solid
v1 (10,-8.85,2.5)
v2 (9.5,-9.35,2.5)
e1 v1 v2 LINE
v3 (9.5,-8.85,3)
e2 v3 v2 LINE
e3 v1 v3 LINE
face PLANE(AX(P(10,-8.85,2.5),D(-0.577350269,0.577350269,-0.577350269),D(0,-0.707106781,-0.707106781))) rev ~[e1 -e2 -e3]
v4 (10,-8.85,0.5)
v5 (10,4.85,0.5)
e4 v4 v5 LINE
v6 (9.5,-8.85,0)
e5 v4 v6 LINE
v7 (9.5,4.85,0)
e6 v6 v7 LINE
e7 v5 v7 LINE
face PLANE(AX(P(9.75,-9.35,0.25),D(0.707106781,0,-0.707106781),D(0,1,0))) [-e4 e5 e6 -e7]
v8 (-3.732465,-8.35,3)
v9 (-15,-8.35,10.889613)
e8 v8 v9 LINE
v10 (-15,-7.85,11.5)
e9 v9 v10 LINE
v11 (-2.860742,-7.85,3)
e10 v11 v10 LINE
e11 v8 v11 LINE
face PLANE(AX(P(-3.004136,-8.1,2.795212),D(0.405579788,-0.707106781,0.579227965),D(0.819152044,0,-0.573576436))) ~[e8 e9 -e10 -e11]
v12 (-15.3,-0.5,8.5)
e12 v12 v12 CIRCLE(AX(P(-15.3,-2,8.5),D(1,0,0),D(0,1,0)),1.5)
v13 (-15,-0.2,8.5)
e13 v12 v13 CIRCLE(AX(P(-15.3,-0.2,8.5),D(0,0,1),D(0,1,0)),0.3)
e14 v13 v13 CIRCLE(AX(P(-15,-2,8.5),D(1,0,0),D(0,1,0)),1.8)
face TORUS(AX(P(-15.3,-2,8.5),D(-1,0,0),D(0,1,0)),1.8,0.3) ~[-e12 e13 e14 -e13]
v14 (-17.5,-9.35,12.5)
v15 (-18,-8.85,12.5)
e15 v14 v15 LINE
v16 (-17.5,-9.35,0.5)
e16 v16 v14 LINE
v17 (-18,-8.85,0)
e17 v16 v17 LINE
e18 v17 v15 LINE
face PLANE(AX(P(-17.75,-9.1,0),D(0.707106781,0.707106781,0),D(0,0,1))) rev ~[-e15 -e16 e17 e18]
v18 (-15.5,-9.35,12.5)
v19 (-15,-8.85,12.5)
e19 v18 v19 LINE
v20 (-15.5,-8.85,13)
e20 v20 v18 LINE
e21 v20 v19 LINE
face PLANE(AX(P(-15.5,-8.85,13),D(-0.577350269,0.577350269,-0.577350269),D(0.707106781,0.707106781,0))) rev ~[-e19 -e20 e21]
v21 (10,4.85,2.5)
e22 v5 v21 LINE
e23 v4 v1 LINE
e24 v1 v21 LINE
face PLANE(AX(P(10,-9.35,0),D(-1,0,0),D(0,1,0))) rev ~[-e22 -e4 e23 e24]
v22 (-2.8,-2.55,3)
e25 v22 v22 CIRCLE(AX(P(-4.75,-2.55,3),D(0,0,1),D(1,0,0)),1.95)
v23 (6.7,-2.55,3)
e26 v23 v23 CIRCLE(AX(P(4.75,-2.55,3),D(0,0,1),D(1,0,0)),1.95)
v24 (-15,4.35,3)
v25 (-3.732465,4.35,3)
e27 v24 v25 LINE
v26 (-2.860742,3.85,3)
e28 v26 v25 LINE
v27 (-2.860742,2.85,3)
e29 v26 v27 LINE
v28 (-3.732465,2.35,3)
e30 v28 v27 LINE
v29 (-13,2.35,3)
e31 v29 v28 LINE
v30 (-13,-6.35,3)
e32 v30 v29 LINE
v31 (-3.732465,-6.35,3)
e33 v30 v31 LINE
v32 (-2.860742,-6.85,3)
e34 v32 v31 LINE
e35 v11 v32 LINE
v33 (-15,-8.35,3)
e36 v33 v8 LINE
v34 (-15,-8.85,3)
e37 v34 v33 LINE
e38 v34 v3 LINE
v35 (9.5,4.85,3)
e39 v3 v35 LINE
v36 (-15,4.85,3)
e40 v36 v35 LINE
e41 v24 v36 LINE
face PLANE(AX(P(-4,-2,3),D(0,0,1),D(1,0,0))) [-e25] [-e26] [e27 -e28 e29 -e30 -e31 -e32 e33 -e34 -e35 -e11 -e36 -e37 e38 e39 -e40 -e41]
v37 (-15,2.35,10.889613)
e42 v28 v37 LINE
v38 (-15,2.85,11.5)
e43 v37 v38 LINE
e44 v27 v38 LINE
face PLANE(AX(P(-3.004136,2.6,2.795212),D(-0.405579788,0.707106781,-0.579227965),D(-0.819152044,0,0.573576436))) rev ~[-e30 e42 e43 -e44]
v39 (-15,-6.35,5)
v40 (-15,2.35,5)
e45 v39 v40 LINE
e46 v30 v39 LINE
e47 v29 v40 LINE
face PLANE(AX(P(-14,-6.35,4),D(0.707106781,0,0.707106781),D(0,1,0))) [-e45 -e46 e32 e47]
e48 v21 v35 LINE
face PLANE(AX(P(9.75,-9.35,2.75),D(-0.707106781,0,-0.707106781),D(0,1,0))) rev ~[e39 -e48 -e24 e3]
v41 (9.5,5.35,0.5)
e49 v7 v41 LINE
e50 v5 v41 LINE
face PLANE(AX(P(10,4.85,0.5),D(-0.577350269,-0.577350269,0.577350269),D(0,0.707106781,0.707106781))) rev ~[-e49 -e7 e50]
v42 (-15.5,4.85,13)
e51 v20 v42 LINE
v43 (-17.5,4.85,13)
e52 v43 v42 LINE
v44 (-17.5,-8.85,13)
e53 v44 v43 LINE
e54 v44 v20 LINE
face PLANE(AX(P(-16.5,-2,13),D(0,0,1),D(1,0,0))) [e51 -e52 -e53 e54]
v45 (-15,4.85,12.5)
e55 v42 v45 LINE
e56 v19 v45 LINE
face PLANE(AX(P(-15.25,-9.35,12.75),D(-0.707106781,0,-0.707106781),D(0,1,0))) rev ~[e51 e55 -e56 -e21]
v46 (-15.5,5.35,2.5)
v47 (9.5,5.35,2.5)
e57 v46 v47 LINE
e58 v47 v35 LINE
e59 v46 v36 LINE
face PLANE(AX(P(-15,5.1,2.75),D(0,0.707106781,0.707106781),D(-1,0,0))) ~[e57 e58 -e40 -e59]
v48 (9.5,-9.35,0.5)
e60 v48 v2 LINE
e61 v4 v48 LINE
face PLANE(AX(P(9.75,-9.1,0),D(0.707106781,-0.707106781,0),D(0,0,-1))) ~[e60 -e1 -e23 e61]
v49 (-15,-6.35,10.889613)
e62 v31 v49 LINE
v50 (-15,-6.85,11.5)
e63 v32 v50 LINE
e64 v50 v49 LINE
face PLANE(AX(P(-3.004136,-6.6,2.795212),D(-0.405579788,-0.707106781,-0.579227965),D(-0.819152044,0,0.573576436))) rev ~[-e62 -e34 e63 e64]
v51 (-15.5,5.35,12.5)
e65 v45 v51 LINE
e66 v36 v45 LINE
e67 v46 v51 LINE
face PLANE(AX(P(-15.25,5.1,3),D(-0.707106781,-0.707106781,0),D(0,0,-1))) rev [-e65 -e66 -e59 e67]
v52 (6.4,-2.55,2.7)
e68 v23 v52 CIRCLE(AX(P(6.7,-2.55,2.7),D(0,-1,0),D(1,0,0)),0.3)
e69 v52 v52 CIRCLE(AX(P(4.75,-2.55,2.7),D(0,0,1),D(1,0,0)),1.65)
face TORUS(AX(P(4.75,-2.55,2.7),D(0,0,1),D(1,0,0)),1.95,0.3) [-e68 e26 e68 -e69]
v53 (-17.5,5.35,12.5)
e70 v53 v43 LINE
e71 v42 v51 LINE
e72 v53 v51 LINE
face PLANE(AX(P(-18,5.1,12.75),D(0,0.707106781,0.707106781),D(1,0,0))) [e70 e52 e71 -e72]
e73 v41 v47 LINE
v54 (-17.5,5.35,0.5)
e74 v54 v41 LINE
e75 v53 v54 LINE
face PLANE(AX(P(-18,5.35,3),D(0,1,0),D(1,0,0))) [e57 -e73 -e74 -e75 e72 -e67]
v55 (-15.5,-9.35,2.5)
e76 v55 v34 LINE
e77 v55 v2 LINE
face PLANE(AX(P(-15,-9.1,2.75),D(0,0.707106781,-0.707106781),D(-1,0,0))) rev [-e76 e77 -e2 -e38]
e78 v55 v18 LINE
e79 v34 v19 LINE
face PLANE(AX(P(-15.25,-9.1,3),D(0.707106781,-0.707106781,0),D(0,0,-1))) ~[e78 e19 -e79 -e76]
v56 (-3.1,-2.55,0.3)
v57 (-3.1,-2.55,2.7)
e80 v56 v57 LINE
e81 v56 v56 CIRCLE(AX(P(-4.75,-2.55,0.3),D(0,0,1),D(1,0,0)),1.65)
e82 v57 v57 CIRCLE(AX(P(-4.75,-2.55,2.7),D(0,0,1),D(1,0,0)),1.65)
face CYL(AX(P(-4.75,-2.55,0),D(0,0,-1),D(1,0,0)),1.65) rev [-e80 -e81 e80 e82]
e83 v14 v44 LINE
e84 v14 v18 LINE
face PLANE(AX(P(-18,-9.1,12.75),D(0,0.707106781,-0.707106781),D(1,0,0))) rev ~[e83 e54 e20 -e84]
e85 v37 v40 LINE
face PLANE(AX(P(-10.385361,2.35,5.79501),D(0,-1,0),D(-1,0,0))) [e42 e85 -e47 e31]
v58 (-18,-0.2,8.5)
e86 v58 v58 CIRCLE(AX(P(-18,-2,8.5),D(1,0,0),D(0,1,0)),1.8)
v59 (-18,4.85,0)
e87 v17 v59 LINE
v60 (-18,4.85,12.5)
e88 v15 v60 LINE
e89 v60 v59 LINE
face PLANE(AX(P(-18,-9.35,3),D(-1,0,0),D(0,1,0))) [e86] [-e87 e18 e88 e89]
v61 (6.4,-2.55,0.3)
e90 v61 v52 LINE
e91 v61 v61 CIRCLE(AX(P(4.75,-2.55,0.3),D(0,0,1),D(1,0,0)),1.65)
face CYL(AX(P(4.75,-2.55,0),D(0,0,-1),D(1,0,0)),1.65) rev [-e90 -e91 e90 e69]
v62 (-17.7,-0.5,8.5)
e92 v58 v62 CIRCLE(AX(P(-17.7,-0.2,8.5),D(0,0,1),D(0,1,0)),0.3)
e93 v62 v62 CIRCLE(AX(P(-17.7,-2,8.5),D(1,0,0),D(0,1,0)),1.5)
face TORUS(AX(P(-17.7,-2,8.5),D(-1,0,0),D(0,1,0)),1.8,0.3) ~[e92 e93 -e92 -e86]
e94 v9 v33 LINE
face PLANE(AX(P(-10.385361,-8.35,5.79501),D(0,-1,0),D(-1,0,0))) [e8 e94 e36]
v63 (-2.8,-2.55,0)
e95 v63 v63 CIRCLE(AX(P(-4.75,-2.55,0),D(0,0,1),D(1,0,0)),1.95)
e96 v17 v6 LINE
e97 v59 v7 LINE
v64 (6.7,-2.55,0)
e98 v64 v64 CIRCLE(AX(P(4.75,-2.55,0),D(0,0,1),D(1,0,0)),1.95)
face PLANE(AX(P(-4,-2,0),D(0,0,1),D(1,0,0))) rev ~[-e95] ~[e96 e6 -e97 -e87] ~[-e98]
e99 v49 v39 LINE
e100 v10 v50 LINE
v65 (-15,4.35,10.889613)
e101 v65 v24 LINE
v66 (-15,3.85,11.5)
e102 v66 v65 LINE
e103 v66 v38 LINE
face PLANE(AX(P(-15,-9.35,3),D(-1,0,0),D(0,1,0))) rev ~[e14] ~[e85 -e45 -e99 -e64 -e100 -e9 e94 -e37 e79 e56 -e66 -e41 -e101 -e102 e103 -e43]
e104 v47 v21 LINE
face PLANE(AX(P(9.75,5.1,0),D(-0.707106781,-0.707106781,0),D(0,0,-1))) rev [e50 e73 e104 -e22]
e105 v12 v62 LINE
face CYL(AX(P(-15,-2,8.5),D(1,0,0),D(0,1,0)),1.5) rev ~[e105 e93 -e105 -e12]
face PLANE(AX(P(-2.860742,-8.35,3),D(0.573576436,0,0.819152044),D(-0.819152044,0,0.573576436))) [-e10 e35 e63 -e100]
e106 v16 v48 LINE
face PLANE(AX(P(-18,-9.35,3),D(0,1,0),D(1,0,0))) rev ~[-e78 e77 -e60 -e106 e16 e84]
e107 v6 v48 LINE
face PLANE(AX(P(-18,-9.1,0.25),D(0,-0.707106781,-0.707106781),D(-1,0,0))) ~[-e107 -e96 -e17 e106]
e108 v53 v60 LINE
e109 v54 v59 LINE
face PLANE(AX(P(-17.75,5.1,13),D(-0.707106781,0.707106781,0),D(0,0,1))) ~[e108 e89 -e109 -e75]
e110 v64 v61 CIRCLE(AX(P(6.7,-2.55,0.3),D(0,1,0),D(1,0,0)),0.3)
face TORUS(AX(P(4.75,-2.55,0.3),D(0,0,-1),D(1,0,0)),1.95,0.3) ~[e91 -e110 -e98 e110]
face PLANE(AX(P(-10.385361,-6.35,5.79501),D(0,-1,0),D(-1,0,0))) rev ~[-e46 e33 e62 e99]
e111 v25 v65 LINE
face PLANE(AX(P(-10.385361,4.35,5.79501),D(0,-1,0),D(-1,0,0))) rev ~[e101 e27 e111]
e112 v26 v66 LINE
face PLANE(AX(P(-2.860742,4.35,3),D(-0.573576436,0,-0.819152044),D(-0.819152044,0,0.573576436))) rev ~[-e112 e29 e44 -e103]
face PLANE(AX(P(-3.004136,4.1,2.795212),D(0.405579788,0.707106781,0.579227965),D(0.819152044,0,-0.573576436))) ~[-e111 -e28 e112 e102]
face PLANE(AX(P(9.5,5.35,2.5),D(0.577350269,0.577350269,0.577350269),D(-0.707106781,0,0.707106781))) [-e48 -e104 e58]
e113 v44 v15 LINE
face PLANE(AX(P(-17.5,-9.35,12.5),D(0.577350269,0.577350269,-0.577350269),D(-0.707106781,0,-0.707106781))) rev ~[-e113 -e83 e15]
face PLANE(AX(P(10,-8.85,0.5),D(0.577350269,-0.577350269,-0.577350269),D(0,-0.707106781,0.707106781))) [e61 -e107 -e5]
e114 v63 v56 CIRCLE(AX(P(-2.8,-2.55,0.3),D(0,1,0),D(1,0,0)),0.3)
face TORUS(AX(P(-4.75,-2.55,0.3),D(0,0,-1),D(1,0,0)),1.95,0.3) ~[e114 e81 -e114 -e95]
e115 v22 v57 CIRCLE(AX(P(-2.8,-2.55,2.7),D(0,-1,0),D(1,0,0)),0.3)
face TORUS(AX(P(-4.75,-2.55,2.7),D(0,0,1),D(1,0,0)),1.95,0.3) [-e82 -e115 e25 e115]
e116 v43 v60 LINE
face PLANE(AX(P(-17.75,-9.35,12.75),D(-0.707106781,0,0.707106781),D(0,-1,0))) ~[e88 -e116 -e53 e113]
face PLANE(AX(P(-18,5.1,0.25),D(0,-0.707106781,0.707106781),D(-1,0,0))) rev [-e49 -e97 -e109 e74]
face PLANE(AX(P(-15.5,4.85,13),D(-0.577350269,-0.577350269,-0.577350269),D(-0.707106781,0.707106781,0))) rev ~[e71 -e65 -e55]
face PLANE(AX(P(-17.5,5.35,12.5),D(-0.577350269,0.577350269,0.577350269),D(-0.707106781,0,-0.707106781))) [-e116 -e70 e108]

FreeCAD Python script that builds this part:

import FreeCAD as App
import Part
import Sketcher

V = App.Vector
Q = App.Units.Quantity


def edges_at(feature, points):
    """Names of the edges that pass closest to the given points."""
    edges = feature.Shape.Edges
    near = lambda p: min(range(len(edges)), key=lambda i: edges[i].distToShape(Part.Vertex(*p))[0])
    return sorted({f"Edge{near(p) + 1}" for p in points})


def add_polygon(sketch, points):
    """Adds a closed chain of lines whose ends are joined by coincident constraints."""
    first, n = sketch.GeometryCount, len(points)
    for a, b in zip(points, points[1:] + points[:1]):
        sketch.addGeometry(Part.LineSegment(App.Vector(*a, 0), App.Vector(*b, 0)), False)
    for i in range(n):
        sketch.addConstraint(Sketcher.Constraint("Coincident", first + i, 2, first + (i + 1) % n, 1))

doc = App.newDocument("Part")
body = doc.addObject("PartDesign::Body", "Body")

# Sketch on XY plane
sketch1 = body.newObject("Sketcher::SketchObject", "Sketch")
sketch1.AttachmentSupport = (doc.getObject("XY_Plane"), [""])
sketch1.MapMode = "FlatFace"
add_polygon(sketch1, [(-18, 5.35), (-18, -9.35), (10, -9.35), (10, 5.35)])  # lines 0-3
sketch1.addGeometry(Part.Circle(V(-4.75, -2.55, 0), V(0, 0, 1), 1.65), False)  # 4
sketch1.addGeometry(Part.Circle(V(4.75, -2.55, 0), V(0, 0, 1), 1.65), False)  # 5
sketch1.addConstraint([
    Sketcher.Constraint("Vertical", 0),
    Sketcher.Constraint("Horizontal", 1),
    Sketcher.Constraint("Vertical", 2),
    Sketcher.Constraint("Horizontal", 3),
    Sketcher.Constraint("Equal", 4, 5),
    Sketcher.Constraint("Symmetric", 4, 3, 5, 3, -2),
    Sketcher.Constraint("Diameter", 4, 3.3),
    Sketcher.Constraint("DistanceX", 1, 1, 1, 2, 28.0),
    Sketcher.Constraint("DistanceY", 0, 2, 0, 1, 14.7),
    Sketcher.Constraint("DistanceX", 0, 2, -1, 1, 18.0),
    Sketcher.Constraint("DistanceX", 4, 3, 5, 3, 9.5),
    Sketcher.Constraint("DistanceY", 0, 2, 4, 3, 6.8),
    Sketcher.Constraint("DistanceY", 4, 3, -1, 1, 2.55),
])
pad1 = body.newObject("PartDesign::Pad", "Pad")
pad1.Profile = sketch1
pad1.Length = 3

# Sketch on XY plane
sketch2 = body.newObject("Sketcher::SketchObject", "Sketch001")
sketch2.AttachmentSupport = (doc.getObject("XY_Plane"), [""])
sketch2.MapMode = "FlatFace"
sketch2.AttachmentOffset = App.Placement(V(0, 0, 3), App.Rotation())
add_polygon(sketch2, [(-18, 5.35), (-18, -9.35), (-15, -9.35), (-15, 5.35)])  # lines 0-3
sketch2.addConstraint([
    Sketcher.Constraint("Vertical", 0),
    Sketcher.Constraint("Horizontal", 1),
    Sketcher.Constraint("Vertical", 2),
    Sketcher.Constraint("Horizontal", 3),
    Sketcher.Constraint("DistanceX", 1, 1, 1, 2, 3.0),
    Sketcher.Constraint("DistanceY", 0, 2, 0, 1, 14.7),
    Sketcher.Constraint("DistanceX", 0, 2, -1, 1, 18.0),
    Sketcher.Constraint("DistanceY", 0, 2, -1, 1, 9.35),
])
pad2 = body.newObject("PartDesign::Pad", "Pad001")
pad2.Profile = sketch2
pad2.Length = 10

# Sketch on YZ plane
sketch3 = body.newObject("Sketcher::SketchObject", "Sketch002")
sketch3.AttachmentSupport = (doc.getObject("YZ_Plane"), [""])
sketch3.MapMode = "FlatFace"
sketch3.AttachmentOffset = App.Placement(V(0, 0, -15), App.Rotation())
sketch3.addGeometry(Part.Circle(V(-2, 8.5, 0), V(0, 0, 1), 1.5), False)
sketch3.addConstraint([
    Sketcher.Constraint("Diameter", 0, 3.0),
    Sketcher.Constraint("DistanceX", 0, 3, -1, 1, 2.0),
    Sketcher.Constraint("DistanceY", -1, 1, 0, 3, 8.5),
])
pocket1 = body.newObject("PartDesign::Pocket", "Pocket")
pocket1.Profile = sketch3
pocket1.Length = 10
doc.recompute()

fillet = body.newObject("PartDesign::Fillet", "Fillet")
fillet.Base = (pocket1, edges_at(pocket1, [
    (-6.4, -2.55, 0),
    (-6.4, -2.55, 3),
    (3.1, -2.55, 0),
    (3.1, -2.55, 3),
    (-18, -3.5, 8.5),
    (-15, -3.5, 8.5),
]))
fillet.Radius = 0.3

# Sketch on XZ plane
sketch4 = body.newObject("Sketcher::SketchObject", "Sketch003")
sketch4.AttachmentSupport = (doc.getObject("XZ_Plane"), [""])
sketch4.MapMode = "FlatFace"
sketch4.AttachmentOffset = App.Placement(V(0, 0, -4.35), App.Rotation())
add_polygon(sketch4, [(-2.860742, 3), (-15, 3), (-15, 11.5)])  # lines 0-2
sketch4.addConstraint([
    Sketcher.Constraint("Horizontal", 0),
    Sketcher.Constraint("Vertical", 1),
    Sketcher.Constraint("Angle", 2, Q("-35 deg")),
    Sketcher.Constraint("DistanceY", 1, 1, 1, 2, 8.5),
    Sketcher.Constraint("DistanceX", 0, 2, -1, 1, 15.0),
    Sketcher.Constraint("DistanceY", -1, 1, 0, 2, 3.0),
])
pad3 = body.newObject("PartDesign::Pad", "Pad002")
pad3.Profile = sketch4
pad3.Length = 2

# Sketch on XZ plane
sketch5 = body.newObject("Sketcher::SketchObject", "Sketch004")
sketch5.AttachmentSupport = (doc.getObject("XZ_Plane"), [""])
sketch5.MapMode = "FlatFace"
sketch5.AttachmentOffset = App.Placement(V(0, 0, 8.35), App.Rotation())
add_polygon(sketch5, [(-15, 11.5), (-15, 3), (-2.860742, 3)])  # lines 0-2
sketch5.addConstraint([
    Sketcher.Constraint("Vertical", 0),
    Sketcher.Constraint("Horizontal", 1),
    Sketcher.Constraint("Angle", 2, Q("145 deg")),
    Sketcher.Constraint("DistanceY", 0, 2, 0, 1, 8.5),
    Sketcher.Constraint("DistanceX", 0, 2, -1, 1, 15.0),
    Sketcher.Constraint("DistanceY", -1, 1, 0, 2, 3.0),
])
pad4 = body.newObject("PartDesign::Pad", "Pad003")
pad4.Profile = sketch5
pad4.Length = 2
pad4.Reversed = True
doc.recompute()

chamfer = body.newObject("PartDesign::Chamfer", "Chamfer")
chamfer.Base = (pad4, edges_at(pad4, [
    (-2.5, -9.35, 3),
    (-15, -9.35, 8),
    (-15, 5.35, 8),
    (-18, -2, 13),
    (-16.5, -9.35, 13),
    (-15, -2, 13),
    (-16.5, 5.35, 13),
    (10, -2, 3),
    (-4, -9.35, 0),
    (-4, 5.35, 0),
    (10, -2, 0),
    (-8.93, 2.35, 7.25),
    (-8.93, 4.35, 7.25),
    (-8.93, -6.35, 7.25),
    (-8.93, -8.35, 7.25),
    (10, -9.35, 1.5),
    (-18, -9.35, 6.5),
    (-18, 5.35, 6.5),
    (10, 5.35, 1.5),
    (-2.5, 5.35, 3),
]))
chamfer.Size = 0.5
doc.recompute()

chamfer2 = body.newObject("PartDesign::Chamfer", "Chamfer001")
chamfer2.Base = (chamfer, edges_at(chamfer, [(-15, -2, 3)]))
chamfer2.Size = 2

doc.recompute()
